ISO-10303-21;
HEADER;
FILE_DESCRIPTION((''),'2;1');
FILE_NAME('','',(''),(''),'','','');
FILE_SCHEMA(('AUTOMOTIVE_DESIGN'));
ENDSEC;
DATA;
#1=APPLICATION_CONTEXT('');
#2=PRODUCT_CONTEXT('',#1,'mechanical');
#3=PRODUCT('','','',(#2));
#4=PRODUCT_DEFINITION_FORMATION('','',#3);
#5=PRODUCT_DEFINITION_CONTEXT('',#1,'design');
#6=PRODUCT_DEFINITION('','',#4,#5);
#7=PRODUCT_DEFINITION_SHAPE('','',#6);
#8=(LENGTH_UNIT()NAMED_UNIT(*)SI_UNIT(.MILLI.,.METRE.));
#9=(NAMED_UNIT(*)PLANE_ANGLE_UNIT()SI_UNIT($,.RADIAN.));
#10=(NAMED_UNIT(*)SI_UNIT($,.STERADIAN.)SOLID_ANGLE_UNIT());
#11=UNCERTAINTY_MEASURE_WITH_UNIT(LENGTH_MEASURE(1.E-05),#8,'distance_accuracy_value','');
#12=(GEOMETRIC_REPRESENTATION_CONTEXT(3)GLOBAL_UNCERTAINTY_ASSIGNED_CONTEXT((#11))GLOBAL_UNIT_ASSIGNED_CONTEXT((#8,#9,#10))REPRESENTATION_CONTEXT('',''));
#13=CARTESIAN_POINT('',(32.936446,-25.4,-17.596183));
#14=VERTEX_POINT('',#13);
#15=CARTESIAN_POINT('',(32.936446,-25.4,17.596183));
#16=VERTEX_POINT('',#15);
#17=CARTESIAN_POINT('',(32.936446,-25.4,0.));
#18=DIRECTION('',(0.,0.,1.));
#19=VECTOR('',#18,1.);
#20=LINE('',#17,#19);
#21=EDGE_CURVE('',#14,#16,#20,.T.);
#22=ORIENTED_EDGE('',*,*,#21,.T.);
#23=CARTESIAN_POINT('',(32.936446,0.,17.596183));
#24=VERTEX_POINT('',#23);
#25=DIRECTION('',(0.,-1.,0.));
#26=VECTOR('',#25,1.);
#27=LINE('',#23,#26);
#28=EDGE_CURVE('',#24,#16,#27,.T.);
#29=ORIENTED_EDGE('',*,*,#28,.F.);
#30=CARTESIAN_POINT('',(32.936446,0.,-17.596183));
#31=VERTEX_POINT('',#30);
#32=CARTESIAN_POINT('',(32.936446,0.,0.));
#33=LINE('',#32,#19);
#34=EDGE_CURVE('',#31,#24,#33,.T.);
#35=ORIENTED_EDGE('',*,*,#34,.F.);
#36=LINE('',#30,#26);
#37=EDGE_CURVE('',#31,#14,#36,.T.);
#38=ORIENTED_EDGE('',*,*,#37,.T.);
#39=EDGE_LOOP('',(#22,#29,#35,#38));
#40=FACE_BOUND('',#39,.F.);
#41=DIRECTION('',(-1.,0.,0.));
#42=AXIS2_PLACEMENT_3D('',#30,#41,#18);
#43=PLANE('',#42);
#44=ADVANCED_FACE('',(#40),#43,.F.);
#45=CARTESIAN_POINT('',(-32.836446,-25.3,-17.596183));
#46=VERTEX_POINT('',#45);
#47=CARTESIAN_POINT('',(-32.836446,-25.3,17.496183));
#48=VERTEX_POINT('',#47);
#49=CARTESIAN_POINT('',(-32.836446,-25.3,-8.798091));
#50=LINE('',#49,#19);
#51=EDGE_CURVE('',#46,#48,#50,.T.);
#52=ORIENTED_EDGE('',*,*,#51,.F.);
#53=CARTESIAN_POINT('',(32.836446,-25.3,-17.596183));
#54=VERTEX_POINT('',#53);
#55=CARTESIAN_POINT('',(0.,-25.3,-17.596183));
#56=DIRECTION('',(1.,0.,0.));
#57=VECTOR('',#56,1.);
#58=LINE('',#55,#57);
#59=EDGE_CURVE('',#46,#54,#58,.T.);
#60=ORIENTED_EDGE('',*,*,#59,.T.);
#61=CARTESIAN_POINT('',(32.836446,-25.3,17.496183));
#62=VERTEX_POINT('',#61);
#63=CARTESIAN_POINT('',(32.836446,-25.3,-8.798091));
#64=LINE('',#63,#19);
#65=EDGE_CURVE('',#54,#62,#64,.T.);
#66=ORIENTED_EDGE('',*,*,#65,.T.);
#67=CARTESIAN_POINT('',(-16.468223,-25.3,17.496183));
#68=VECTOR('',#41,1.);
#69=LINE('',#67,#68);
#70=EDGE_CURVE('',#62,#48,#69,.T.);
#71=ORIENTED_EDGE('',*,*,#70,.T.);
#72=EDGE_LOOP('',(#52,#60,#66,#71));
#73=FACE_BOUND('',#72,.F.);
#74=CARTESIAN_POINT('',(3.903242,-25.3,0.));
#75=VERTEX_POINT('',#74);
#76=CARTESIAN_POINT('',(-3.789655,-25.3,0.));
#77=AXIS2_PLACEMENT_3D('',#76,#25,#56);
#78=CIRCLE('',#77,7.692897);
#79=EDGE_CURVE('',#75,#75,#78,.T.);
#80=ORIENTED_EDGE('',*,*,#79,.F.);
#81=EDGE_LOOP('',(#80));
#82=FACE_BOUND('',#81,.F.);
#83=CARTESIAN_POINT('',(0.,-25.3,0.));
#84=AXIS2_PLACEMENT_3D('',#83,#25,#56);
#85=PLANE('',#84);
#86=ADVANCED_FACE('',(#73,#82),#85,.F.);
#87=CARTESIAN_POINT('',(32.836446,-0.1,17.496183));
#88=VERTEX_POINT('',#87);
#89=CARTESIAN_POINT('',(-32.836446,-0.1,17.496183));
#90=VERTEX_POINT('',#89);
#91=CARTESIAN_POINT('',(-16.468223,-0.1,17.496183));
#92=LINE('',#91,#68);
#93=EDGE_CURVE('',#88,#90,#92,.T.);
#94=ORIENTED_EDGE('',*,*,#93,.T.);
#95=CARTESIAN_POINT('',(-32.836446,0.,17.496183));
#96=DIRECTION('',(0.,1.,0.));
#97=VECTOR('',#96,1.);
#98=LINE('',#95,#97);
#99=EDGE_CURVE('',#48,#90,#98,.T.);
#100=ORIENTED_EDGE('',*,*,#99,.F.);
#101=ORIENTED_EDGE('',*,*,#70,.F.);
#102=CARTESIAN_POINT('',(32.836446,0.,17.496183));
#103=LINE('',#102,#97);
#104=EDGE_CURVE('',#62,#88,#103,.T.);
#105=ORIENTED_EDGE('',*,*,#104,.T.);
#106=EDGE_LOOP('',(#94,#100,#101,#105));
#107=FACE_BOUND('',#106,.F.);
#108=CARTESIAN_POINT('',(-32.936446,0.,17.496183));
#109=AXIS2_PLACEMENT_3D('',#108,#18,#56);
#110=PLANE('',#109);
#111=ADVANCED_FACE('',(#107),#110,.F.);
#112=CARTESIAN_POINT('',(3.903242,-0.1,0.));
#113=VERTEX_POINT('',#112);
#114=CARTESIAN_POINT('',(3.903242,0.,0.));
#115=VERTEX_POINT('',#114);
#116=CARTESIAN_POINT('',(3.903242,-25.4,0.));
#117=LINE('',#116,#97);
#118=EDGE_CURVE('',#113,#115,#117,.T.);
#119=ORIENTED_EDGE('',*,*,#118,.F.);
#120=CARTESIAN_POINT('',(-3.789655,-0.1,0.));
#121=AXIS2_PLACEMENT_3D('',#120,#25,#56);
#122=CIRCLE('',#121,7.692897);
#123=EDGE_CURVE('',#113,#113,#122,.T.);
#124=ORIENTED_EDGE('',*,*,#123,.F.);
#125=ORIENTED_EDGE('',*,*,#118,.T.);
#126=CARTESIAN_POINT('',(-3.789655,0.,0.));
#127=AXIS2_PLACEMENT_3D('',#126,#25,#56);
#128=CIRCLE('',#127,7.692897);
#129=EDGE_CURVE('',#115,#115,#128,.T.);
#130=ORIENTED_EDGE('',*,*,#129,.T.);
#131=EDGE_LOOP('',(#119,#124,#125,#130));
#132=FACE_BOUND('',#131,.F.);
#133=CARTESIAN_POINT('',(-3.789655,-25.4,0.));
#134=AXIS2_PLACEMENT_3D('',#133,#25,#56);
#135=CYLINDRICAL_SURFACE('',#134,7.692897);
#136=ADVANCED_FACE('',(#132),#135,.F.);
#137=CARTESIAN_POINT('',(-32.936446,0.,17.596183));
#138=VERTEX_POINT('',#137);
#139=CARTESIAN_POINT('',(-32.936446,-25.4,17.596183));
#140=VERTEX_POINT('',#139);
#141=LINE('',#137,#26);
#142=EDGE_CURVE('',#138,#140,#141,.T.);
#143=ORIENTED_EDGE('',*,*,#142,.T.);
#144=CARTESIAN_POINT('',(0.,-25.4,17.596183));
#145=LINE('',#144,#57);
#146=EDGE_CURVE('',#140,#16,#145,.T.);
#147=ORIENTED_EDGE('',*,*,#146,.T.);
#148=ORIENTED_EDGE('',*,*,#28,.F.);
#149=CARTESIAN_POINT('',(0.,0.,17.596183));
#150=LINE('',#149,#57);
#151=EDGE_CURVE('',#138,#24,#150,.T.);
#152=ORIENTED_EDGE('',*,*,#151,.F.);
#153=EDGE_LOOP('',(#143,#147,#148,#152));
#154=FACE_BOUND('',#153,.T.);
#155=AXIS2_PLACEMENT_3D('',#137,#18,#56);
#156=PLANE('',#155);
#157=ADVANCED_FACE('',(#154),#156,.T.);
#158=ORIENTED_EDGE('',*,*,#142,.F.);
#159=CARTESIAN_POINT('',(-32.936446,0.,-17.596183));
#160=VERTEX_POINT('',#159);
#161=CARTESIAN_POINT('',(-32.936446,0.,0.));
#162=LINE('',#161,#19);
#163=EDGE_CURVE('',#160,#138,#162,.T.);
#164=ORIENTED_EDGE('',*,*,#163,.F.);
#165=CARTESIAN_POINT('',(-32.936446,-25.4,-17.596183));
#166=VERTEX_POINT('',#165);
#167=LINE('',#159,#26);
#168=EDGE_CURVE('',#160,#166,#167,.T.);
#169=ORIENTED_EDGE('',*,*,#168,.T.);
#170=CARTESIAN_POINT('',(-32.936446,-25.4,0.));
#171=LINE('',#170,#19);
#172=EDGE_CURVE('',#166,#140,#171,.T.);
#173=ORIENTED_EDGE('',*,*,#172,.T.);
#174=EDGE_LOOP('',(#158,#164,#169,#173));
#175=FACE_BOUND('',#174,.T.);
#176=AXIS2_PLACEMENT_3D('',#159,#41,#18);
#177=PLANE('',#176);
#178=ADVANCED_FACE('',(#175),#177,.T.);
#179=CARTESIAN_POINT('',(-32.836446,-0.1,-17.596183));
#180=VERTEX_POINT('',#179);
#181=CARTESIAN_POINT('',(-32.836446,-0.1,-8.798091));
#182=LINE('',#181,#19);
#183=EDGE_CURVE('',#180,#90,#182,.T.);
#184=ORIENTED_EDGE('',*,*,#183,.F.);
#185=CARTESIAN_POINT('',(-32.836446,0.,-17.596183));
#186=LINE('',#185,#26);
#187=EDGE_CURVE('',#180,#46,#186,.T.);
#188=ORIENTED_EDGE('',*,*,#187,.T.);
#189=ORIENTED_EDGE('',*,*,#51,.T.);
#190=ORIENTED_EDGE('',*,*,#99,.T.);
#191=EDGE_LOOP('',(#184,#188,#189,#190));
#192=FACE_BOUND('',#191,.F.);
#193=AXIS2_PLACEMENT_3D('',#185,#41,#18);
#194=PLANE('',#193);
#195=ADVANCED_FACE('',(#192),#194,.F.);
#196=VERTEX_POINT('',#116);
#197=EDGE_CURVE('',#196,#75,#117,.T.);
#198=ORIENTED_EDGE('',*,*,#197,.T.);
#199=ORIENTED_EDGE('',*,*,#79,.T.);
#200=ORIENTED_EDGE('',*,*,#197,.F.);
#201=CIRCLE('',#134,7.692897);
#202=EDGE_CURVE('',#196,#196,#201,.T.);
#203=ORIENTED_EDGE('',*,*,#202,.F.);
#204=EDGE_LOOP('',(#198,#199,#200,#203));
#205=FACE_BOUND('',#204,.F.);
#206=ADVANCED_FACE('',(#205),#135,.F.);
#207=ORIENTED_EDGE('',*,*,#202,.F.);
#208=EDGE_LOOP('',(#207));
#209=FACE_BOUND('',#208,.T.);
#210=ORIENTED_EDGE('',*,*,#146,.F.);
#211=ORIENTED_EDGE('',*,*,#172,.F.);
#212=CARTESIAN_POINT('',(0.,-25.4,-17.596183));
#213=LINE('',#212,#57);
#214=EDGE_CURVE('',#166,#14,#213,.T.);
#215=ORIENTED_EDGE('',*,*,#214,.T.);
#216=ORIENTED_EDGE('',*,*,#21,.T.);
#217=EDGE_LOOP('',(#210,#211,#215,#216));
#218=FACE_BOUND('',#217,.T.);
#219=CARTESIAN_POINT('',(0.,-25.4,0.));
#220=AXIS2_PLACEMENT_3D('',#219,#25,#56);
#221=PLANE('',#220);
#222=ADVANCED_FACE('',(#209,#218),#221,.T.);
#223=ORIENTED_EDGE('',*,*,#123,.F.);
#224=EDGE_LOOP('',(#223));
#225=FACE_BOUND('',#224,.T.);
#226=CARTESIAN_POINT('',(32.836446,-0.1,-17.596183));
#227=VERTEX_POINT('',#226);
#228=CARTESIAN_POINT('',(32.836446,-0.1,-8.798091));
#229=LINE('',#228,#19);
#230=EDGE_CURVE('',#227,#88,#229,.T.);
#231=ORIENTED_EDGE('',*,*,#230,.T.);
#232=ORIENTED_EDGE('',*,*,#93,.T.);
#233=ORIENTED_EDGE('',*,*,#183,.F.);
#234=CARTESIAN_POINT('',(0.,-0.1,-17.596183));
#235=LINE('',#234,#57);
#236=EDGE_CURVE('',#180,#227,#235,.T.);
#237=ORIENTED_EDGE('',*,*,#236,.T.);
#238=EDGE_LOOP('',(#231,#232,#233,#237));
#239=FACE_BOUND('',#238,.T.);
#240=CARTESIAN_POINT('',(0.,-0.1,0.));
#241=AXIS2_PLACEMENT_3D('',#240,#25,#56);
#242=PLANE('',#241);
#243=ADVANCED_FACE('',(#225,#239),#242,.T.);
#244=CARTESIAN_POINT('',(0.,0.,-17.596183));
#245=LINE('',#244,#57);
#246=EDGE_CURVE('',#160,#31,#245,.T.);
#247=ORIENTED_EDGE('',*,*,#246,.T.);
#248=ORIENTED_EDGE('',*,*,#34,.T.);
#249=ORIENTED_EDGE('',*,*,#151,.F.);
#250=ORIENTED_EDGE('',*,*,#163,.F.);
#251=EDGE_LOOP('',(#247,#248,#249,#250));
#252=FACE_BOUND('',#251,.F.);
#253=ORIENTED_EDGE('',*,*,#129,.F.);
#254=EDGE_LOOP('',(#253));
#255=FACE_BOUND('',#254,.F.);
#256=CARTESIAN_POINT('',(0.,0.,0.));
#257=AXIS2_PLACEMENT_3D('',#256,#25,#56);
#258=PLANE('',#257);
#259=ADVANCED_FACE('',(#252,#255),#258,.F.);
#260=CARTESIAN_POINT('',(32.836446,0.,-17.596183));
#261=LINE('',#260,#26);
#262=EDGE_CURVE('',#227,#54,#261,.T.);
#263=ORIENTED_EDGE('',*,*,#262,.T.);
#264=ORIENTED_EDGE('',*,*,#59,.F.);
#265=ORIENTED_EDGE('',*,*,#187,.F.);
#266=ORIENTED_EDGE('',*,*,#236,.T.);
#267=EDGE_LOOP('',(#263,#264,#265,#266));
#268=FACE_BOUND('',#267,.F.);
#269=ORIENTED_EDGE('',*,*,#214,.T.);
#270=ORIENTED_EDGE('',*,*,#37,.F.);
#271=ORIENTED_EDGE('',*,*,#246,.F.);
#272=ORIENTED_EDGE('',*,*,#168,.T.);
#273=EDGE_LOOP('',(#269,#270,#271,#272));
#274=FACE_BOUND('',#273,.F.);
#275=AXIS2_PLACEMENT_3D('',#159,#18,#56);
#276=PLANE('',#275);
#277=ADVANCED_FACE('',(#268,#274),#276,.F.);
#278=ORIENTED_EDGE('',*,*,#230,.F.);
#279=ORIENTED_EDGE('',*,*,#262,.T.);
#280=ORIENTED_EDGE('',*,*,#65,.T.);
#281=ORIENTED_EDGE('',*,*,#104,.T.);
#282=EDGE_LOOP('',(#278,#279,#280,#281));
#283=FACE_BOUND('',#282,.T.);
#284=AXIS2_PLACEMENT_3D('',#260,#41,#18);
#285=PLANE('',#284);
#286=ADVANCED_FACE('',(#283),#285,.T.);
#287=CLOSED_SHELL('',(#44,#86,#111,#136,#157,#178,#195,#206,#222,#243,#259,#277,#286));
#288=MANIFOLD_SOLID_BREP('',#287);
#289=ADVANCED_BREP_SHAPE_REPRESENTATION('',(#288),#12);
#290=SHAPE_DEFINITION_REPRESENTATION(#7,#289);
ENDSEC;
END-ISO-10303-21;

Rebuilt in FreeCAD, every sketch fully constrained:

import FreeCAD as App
import Part
import Sketcher
from FreeCAD import Vector
Q = App.Units.Quantity


def faces_at(feature, points):
    """Names of the faces that lie closest to the given points."""
    faces = feature.Shape.Faces
    near = lambda p: min(range(len(faces)), key=lambda i: faces[i].distToShape(Part.Vertex(*p))[0])
    return sorted({f"Face{near(p) + 1}" for p in points})


def add_polygon(sketch, points):
    """Adds a closed chain of lines whose ends are joined by coincident constraints."""
    first, n = sketch.GeometryCount, len(points)
    for a, b in zip(points, points[1:] + points[:1]):
        sketch.addGeometry(Part.LineSegment(App.Vector(*a, 0), App.Vector(*b, 0)), False)
    for i in range(n):
        sketch.addConstraint(Sketcher.Constraint("Coincident", first + i, 2, first + (i + 1) % n, 1))

doc = App.newDocument("Part")
body = doc.addObject("PartDesign::Body", "Body")

# Sketch on XZ plane
sketch1 = doc.addObject("Sketcher::SketchObject", "Sketch")
body.addObject(sketch1)
sketch1.AttachmentSupport = (doc.XZ_Plane, [""])
sketch1.MapMode = "FlatFace"
add_polygon(sketch1, [(-32.936446, 17.596183), (-32.936446, -17.596183), (32.936446, -17.596183), (32.936446, 17.596183)])  # lines 0-3
sketch1.addConstraint([
    Sketcher.Constraint("Vertical", 0),
    Sketcher.Constraint("Horizontal", 1),
    Sketcher.Constraint("Vertical", 2),
    Sketcher.Constraint("Horizontal", 3),
    Sketcher.Constraint("Symmetric", 0, 2, 2, 2, -1, 1),
    Sketcher.Constraint("DistanceX", 1, 1, 1, 2, Q("65.872892 mm")),
    Sketcher.Constraint("DistanceY", 0, 2, 0, 1, Q("35.192366 mm")),
])
pad1 = doc.addObject("PartDesign::Pad", "Pad")
body.addObject(pad1)
pad1.Profile = sketch1
pad1.Length = Q("1 in")
doc.recompute()

thickness = doc.addObject("PartDesign::Thickness", "Thickness")
body.addObject(thickness)
thickness.Base = (pad1, faces_at(pad1, [(0, -12.7, -17.596)]))
thickness.Value = 0.1
thickness.Reversed = True
thickness.Join = "Arc"

# Sketch on XZ plane
sketch2 = doc.addObject("Sketcher::SketchObject", "Sketch001")
body.addObject(sketch2)
sketch2.AttachmentSupport = (doc.XZ_Plane, [""])
sketch2.MapMode = "FlatFace"
sketch2.AttachmentOffset = App.Placement(Vector(0, 0, 1 * 25.4), App.Rotation())
sketch2.addGeometry(Part.Circle(Vector(-3.789655, 0, 0), Vector(0, 0, 1), 7.692897), False)
sketch2.addConstraint([
    Sketcher.Constraint("PointOnObject", 0, 3, -1),
    Sketcher.Constraint("Diameter", 0, Q("15.385794 mm")),
    Sketcher.Constraint("DistanceX", 0, 3, -1, 1, Q("3.789655 mm")),
])
pocket1 = doc.addObject("PartDesign::Pocket", "Pocket")
body.addObject(pocket1)
pocket1.Profile = sketch2
pocket1.Length = Q("1.69 in")

doc.recompute()
